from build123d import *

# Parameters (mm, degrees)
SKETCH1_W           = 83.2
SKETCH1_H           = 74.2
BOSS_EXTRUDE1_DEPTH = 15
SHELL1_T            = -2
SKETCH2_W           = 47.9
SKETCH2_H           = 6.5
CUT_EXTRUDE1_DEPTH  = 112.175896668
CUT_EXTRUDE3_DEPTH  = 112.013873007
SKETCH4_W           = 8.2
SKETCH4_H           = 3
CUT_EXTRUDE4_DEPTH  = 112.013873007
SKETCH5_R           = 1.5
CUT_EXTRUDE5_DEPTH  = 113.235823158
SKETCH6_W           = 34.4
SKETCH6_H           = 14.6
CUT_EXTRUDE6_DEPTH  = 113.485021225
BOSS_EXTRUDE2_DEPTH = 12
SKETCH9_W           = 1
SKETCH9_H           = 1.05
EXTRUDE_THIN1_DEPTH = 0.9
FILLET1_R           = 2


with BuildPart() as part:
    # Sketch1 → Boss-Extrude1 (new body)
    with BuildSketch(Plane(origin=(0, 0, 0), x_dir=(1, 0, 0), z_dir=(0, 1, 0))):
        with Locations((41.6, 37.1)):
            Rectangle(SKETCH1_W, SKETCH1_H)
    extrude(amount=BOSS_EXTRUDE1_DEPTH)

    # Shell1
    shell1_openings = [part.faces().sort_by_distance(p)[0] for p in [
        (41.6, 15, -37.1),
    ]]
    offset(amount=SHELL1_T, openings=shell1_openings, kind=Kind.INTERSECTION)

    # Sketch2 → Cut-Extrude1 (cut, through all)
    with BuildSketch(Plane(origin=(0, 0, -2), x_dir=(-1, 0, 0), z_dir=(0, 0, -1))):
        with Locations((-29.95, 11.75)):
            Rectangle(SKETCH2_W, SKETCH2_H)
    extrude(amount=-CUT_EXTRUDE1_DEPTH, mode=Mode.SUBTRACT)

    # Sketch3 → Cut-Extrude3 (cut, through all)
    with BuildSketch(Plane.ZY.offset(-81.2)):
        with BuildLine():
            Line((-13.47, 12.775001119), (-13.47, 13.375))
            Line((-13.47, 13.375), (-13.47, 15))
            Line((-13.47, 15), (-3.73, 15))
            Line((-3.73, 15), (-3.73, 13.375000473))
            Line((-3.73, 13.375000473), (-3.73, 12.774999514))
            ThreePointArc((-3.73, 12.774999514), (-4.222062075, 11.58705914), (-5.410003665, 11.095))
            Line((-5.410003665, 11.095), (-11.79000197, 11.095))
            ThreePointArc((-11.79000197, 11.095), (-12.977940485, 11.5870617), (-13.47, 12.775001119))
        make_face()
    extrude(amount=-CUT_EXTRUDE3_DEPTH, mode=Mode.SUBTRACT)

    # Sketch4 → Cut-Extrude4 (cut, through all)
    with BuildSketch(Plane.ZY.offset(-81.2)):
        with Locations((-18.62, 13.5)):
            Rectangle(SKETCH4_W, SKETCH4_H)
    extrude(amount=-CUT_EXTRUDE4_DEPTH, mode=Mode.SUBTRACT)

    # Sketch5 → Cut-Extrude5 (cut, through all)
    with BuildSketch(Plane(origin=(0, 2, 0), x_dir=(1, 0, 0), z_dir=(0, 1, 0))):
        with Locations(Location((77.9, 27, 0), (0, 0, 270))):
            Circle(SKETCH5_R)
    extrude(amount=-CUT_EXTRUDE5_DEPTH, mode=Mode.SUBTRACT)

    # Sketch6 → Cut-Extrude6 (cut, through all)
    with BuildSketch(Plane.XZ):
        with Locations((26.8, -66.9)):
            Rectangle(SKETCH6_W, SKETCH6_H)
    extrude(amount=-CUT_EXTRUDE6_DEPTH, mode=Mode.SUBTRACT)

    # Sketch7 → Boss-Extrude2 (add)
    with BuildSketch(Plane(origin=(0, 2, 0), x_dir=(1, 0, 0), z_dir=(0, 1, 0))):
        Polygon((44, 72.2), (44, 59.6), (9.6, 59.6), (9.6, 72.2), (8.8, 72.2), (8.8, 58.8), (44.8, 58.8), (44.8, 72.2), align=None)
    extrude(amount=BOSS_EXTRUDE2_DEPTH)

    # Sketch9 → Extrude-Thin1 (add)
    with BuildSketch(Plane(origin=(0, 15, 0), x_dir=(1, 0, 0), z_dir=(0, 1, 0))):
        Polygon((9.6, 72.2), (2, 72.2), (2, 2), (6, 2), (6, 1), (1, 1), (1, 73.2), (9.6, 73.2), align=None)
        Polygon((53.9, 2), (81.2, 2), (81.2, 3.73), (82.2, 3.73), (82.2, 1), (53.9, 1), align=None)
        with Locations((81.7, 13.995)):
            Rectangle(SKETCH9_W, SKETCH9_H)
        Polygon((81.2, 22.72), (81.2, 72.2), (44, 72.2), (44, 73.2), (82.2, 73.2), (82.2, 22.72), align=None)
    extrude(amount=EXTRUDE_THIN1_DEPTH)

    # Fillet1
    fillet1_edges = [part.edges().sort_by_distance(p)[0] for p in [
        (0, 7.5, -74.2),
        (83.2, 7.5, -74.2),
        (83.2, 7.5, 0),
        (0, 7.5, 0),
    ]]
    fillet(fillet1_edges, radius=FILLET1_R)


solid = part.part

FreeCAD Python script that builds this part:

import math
import FreeCAD as App
import Part
import Sketcher

V = App.Vector
Q = App.Units.Quantity


def edges_at(feature, points):
    """Names of the edges that pass closest to the given points."""
    edges = feature.Shape.Edges
    near = lambda p: min(range(len(edges)), key=lambda i: edges[i].distToShape(Part.Vertex(*p))[0])
    return sorted({f"Edge{near(p) + 1}" for p in points})


def faces_at(feature, points):
    """Names of the faces that lie closest to the given points."""
    faces = feature.Shape.Faces
    near = lambda p: min(range(len(faces)), key=lambda i: faces[i].distToShape(Part.Vertex(*p))[0])
    return sorted({f"Face{near(p) + 1}" for p in points})

doc = App.newDocument("Part")
body = doc.addObject("PartDesign::Body", "Body")

# Sketch on XZ plane
sketch1 = body.newObject("Sketcher::SketchObject", "Sketch")
sketch1.AttachmentSupport = (doc.getObject("XZ_Plane"), [""])
sketch1.MapMode = "FlatFace"
sketch1.addGeometry([
    Part.LineSegment(V(0, -74.2, 0), V(0, 0, 0)),
    Part.LineSegment(V(0, 0, 0), V(83.2, 0, 0)),
    Part.LineSegment(V(83.2, 0, 0), V(83.2, -74.2, 0)),
    Part.LineSegment(V(83.2, -74.2, 0), V(0, -74.2, 0)),
], False)
sketch1.addConstraint([
    Sketcher.Constraint("Coincident", 0, 2, 1, 1),
    Sketcher.Constraint("Coincident", 1, 2, 2, 1),
    Sketcher.Constraint("Coincident", 2, 2, 3, 1),
    Sketcher.Constraint("Coincident", 3, 2, 0, 1),
    Sketcher.Constraint("Vertical", 0),
    Sketcher.Constraint("Horizontal", 1),
    Sketcher.Constraint("Vertical", 2),
    Sketcher.Constraint("Horizontal", 3),
    Sketcher.Constraint("Coincident", 0, 2, -1, 1),
    Sketcher.Constraint("DistanceX", 1, 1, 1, 2, Q("83.2 mm")),
    Sketcher.Constraint("DistanceY", 0, 1, 0, 2, Q("74.2 mm")),
])
pad1 = body.newObject("PartDesign::Pad", "Pad")
pad1.Profile = sketch1
pad1.Length = 15
pad1.Reversed = True
doc.recompute()

thickness = body.newObject("PartDesign::Thickness", "Thickness")
thickness.Base = (pad1, faces_at(pad1, [(41.6, 15, -37.1)]))
thickness.Value = 2
thickness.Reversed = True
thickness.Join = "Intersection"

# Sketch on XY plane
sketch2 = body.newObject("Sketcher::SketchObject", "Sketch001")
sketch2.AttachmentSupport = (doc.getObject("XY_Plane"), [""])
sketch2.MapMode = "FlatFace"
sketch2.AttachmentOffset = App.Placement(V(0, 0, -2), App.Rotation())
sketch2.addGeometry([
    Part.LineSegment(V(53.9, 15, 0), V(53.9, 8.5, 0)),
    Part.LineSegment(V(53.9, 8.5, 0), V(6, 8.5, 0)),
    Part.LineSegment(V(6, 8.5, 0), V(6, 15, 0)),
    Part.LineSegment(V(6, 15, 0), V(53.9, 15, 0)),
], False)
sketch2.addConstraint([
    Sketcher.Constraint("Coincident", 0, 2, 1, 1),
    Sketcher.Constraint("Coincident", 1, 2, 2, 1),
    Sketcher.Constraint("Coincident", 2, 2, 3, 1),
    Sketcher.Constraint("Coincident", 3, 2, 0, 1),
    Sketcher.Constraint("Vertical", 0),
    Sketcher.Constraint("Horizontal", 1),
    Sketcher.Constraint("Vertical", 2),
    Sketcher.Constraint("Horizontal", 3),
    Sketcher.Constraint("DistanceX", 1, 2, 1, 1, Q("47.9 mm")),
    Sketcher.Constraint("DistanceY", 0, 2, 0, 1, Q("6.5 mm")),
    Sketcher.Constraint("DistanceX", -1, 1, 1, 2, Q("6 mm")),
    Sketcher.Constraint("DistanceY", -1, 1, 2, 2, Q("15 mm")),
])
pocket1 = body.newObject("PartDesign::Pocket", "Pocket")
pocket1.Profile = sketch2
pocket1.Type = "ThroughAll"
pocket1.Reversed = True

# Sketch on YZ plane
sketch3 = body.newObject("Sketcher::SketchObject", "Sketch002")
sketch3.AttachmentSupport = (doc.getObject("YZ_Plane"), [""])
sketch3.MapMode = "FlatFace"
sketch3.AttachmentOffset = App.Placement(V(0, 0, 81.2), App.Rotation())
sketch3.addGeometry([
    Part.LineSegment(V(15, -13.47, 0), V(12.775001, -13.47, 0)),  # 0
    Part.ArcOfCircle(Part.Circle(V(12.775, -11.79, 0), V(0, 0, 1), 1.68), math.radians(-179.999933), math.radians(-89.999962)),  # 1
    Part.LineSegment(V(11.095, -11.790002, 0), V(11.095, -5.410004, 0)),  # 2
    Part.ArcOfCircle(Part.Circle(V(12.775, -5.41, 0), V(0, 0, 1), 1.68), math.radians(90.000017), math.radians(180.000125)),  # 3
    Part.LineSegment(V(12.775, -3.73, 0), V(15, -3.73, 0)),  # 4
    Part.LineSegment(V(15, -3.73, 0), V(15, -13.47, 0)),  # 5
], False)
sketch3.addConstraint([
    Sketcher.Constraint("Tangent", 0, 2, 1, 2),
    Sketcher.Constraint("Tangent", 1, 1, 2, 1),
    Sketcher.Constraint("Coincident", 2, 2, 3, 2),
    Sketcher.Constraint("Tangent", 3, 1, 4, 1),
    Sketcher.Constraint("Coincident", 4, 2, 5, 1),
    Sketcher.Constraint("Coincident", 5, 2, 0, 1),
    Sketcher.Constraint("Horizontal", 0),
    Sketcher.Constraint("Vertical", 2),
    Sketcher.Constraint("Horizontal", 4),
    Sketcher.Constraint("Vertical", 5),
    Sketcher.Constraint("Equal", 1, 3),
    Sketcher.Constraint("Radius", 1, Q("1.68 mm")),
    Sketcher.Constraint("DistanceX", -1, 1, 4, 2, Q("15 mm")),
    Sketcher.Constraint("DistanceY", 2, 1, 2, 2, Q("6.379998 mm")),
    Sketcher.Constraint("DistanceY", 5, 2, 5, 1, Q("9.74 mm")),
    Sketcher.Constraint("DistanceX", 0, 2, 0, 1, Q("2.224999 mm")),
    Sketcher.Constraint("DistanceY", 1, 3, -1, 1, Q("11.79 mm")),
])
pocket2 = body.newObject("PartDesign::Pocket", "Pocket001")
pocket2.Profile = sketch3
pocket2.Type = "ThroughAll"
pocket2.Reversed = True

# Sketch on YZ plane
sketch4 = body.newObject("Sketcher::SketchObject", "Sketch003")
sketch4.AttachmentSupport = (doc.getObject("YZ_Plane"), [""])
sketch4.MapMode = "FlatFace"
sketch4.AttachmentOffset = App.Placement(V(0, 0, 81.2), App.Rotation())
sketch4.addGeometry([
    Part.LineSegment(V(15, -22.72, 0), V(12, -22.72, 0)),
    Part.LineSegment(V(12, -22.72, 0), V(12, -14.52, 0)),
    Part.LineSegment(V(12, -14.52, 0), V(15, -14.52, 0)),
    Part.LineSegment(V(15, -14.52, 0), V(15, -22.72, 0)),
], False)
sketch4.addConstraint([
    Sketcher.Constraint("Coincident", 0, 2, 1, 1),
    Sketcher.Constraint("Coincident", 1, 2, 2, 1),
    Sketcher.Constraint("Coincident", 2, 2, 3, 1),
    Sketcher.Constraint("Coincident", 3, 2, 0, 1),
    Sketcher.Constraint("Horizontal", 0),
    Sketcher.Constraint("Vertical", 1),
    Sketcher.Constraint("Horizontal", 2),
    Sketcher.Constraint("Vertical", 3),
    Sketcher.Constraint("DistanceX", 0, 2, 0, 1, Q("3 mm")),
    Sketcher.Constraint("DistanceY", 1, 1, 1, 2, Q("8.2 mm")),
    Sketcher.Constraint("DistanceX", -1, 1, 0, 2, Q("12 mm")),
    Sketcher.Constraint("DistanceY", 0, 2, -1, 1, Q("22.72 mm")),
])
pocket3 = body.newObject("PartDesign::Pocket", "Pocket002")
pocket3.Profile = sketch4
pocket3.Type = "ThroughAll"
pocket3.Reversed = True

# Sketch on XZ plane
sketch5 = body.newObject("Sketcher::SketchObject", "Sketch004")
sketch5.AttachmentSupport = (doc.getObject("XZ_Plane"), [""])
sketch5.MapMode = "FlatFace"
sketch5.AttachmentOffset = App.Placement(V(0, 0, -2), App.Rotation())
sketch5.addGeometry(Part.Circle(V(77.9, -27, 0), V(0, 0, 1), 1.5), False)
sketch5.addConstraint([
    Sketcher.Constraint("Diameter", 0, Q("3 mm")),
    Sketcher.Constraint("DistanceY", 0, 3, -1, 1, Q("27 mm")),
    Sketcher.Constraint("DistanceX", -1, 1, 0, 3, Q("77.9 mm")),
])
pocket4 = body.newObject("PartDesign::Pocket", "Pocket003")
pocket4.Profile = sketch5
pocket4.Type = "ThroughAll"
pocket4.Reversed = True

# Sketch on XZ plane
sketch6 = body.newObject("Sketcher::SketchObject", "Sketch005")
sketch6.AttachmentSupport = (doc.getObject("XZ_Plane"), [""])
sketch6.MapMode = "FlatFace"
sketch6.addGeometry([
    Part.LineSegment(V(9.6, -59.6, 0), V(9.6, -74.2, 0)),
    Part.LineSegment(V(9.6, -74.2, 0), V(44, -74.2, 0)),
    Part.LineSegment(V(44, -74.2, 0), V(44, -59.6, 0)),
    Part.LineSegment(V(44, -59.6, 0), V(9.6, -59.6, 0)),
], False)
sketch6.addConstraint([
    Sketcher.Constraint("Coincident", 0, 2, 1, 1),
    Sketcher.Constraint("Coincident", 1, 2, 2, 1),
    Sketcher.Constraint("Coincident", 2, 2, 3, 1),
    Sketcher.Constraint("Coincident", 3, 2, 0, 1),
    Sketcher.Constraint("Vertical", 0),
    Sketcher.Constraint("Horizontal", 1),
    Sketcher.Constraint("Vertical", 2),
    Sketcher.Constraint("Horizontal", 3),
    Sketcher.Constraint("DistanceX", 1, 1, 1, 2, Q("34.4 mm")),
    Sketcher.Constraint("DistanceY", 0, 2, 0, 1, Q("14.6 mm")),
    Sketcher.Constraint("DistanceX", -1, 1, 1, 2, Q("44 mm")),
    Sketcher.Constraint("DistanceY", 0, 2, -1, 1, Q("74.2 mm")),
])
pocket5 = body.newObject("PartDesign::Pocket", "Pocket004")
pocket5.Profile = sketch6
pocket5.Type = "ThroughAll"

# Sketch on XZ plane
sketch7 = body.newObject("Sketcher::SketchObject", "Sketch006")
sketch7.AttachmentSupport = (doc.getObject("XZ_Plane"), [""])
sketch7.MapMode = "FlatFace"
sketch7.AttachmentOffset = App.Placement(V(0, 0, -2), App.Rotation())
sketch7.addGeometry([
    Part.LineSegment(V(44, -72.2, 0), V(44, -59.6, 0)),  # 0
    Part.LineSegment(V(44, -59.6, 0), V(9.6, -59.6, 0)),  # 1
    Part.LineSegment(V(9.6, -59.6, 0), V(9.6, -72.2, 0)),  # 2
    Part.LineSegment(V(9.6, -72.2, 0), V(8.8, -72.2, 0)),  # 3
    Part.LineSegment(V(8.8, -72.2, 0), V(8.8, -58.8, 0)),  # 4
    Part.LineSegment(V(8.8, -58.8, 0), V(44.8, -58.8, 0)),  # 5
    Part.LineSegment(V(44.8, -58.8, 0), V(44.8, -72.2, 0)),  # 6
    Part.LineSegment(V(44.8, -72.2, 0), V(44, -72.2, 0)),  # 7
], False)
sketch7.addConstraint([
    Sketcher.Constraint("Coincident", 0, 2, 1, 1),
    Sketcher.Constraint("Coincident", 1, 2, 2, 1),
    Sketcher.Constraint("Coincident", 2, 2, 3, 1),
    Sketcher.Constraint("Coincident", 3, 2, 4, 1),
    Sketcher.Constraint("Coincident", 4, 2, 5, 1),
    Sketcher.Constraint("Coincident", 5, 2, 6, 1),
    Sketcher.Constraint("Coincident", 6, 2, 7, 1),
    Sketcher.Constraint("Coincident", 7, 2, 0, 1),
    Sketcher.Constraint("Vertical", 0),
    Sketcher.Constraint("Horizontal", 1),
    Sketcher.Constraint("Vertical", 2),
    Sketcher.Constraint("Horizontal", 3),
    Sketcher.Constraint("Vertical", 4),
    Sketcher.Constraint("Horizontal", 5),
    Sketcher.Constraint("Vertical", 6),
    Sketcher.Constraint("Horizontal", 7),
    Sketcher.Constraint("Horizontal", 3, 2, 6, 2),
    Sketcher.Constraint("Equal", 3, 7),
    Sketcher.Constraint("DistanceX", 5, 1, 5, 2, Q("36 mm")),
    Sketcher.Constraint("DistanceX", 1, 2, 1, 1, Q("34.4 mm")),
    Sketcher.Constraint("DistanceY", 0, 1, 0, 2, Q("12.6 mm")),
    Sketcher.Constraint("DistanceY", 4, 1, 4, 2, Q("13.4 mm")),
    Sketcher.Constraint("DistanceX", -1, 1, 0, 2, Q("44 mm")),
    Sketcher.Constraint("DistanceY", 0, 2, -1, 1, Q("59.6 mm")),
])
pad2 = body.newObject("PartDesign::Pad", "Pad001")
pad2.Profile = sketch7
pad2.Length = 12
pad2.Reversed = True

# Sketch on XZ plane
sketch8 = body.newObject("Sketcher::SketchObject", "Sketch007")
sketch8.AttachmentSupport = (doc.getObject("XZ_Plane"), [""])
sketch8.MapMode = "FlatFace"
sketch8.AttachmentOffset = App.Placement(V(0, 0, -15), App.Rotation())
sketch8.addGeometry([
    Part.LineSegment(V(2, -72.2, 0), V(9.6, -72.2, 0)),  # 0
    Part.LineSegment(V(9.6, -72.2, 0), V(9.6, -73.2, 0)),  # 1
    Part.LineSegment(V(9.6, -73.2, 0), V(1, -73.2, 0)),  # 2
    Part.LineSegment(V(1, -73.2, 0), V(1, -1, 0)),  # 3
    Part.LineSegment(V(1, -1, 0), V(6, -1, 0)),  # 4
    Part.LineSegment(V(6, -1, 0), V(6, -2, 0)),  # 5
    Part.LineSegment(V(6, -2, 0), V(2, -2, 0)),  # 6
    Part.LineSegment(V(2, -2, 0), V(2, -72.2, 0)),  # 7
    Part.LineSegment(V(81.2, -2, 0), V(53.9, -2, 0)),  # 8
    Part.LineSegment(V(53.9, -2, 0), V(53.9, -1, 0)),  # 9
    Part.LineSegment(V(53.9, -1, 0), V(82.2, -1, 0)),  # 10
    Part.LineSegment(V(82.2, -1, 0), V(82.2, -3.73, 0)),  # 11
    Part.LineSegment(V(82.2, -3.73, 0), V(81.2, -3.73, 0)),  # 12
    Part.LineSegment(V(81.2, -3.73, 0), V(81.2, -2, 0)),  # 13
    Part.LineSegment(V(81.2, -14.52, 0), V(81.2, -13.47, 0)),  # 14
    Part.LineSegment(V(81.2, -13.47, 0), V(82.2, -13.47, 0)),  # 15
    Part.LineSegment(V(82.2, -13.47, 0), V(82.2, -14.52, 0)),  # 16
    Part.LineSegment(V(82.2, -14.52, 0), V(81.2, -14.52, 0)),  # 17
    Part.LineSegment(V(81.2, -72.2, 0), V(81.2, -22.72, 0)),  # 18
    Part.LineSegment(V(81.2, -22.72, 0), V(82.2, -22.72, 0)),  # 19
    Part.LineSegment(V(82.2, -22.72, 0), V(82.2, -73.2, 0)),  # 20
    Part.LineSegment(V(82.2, -73.2, 0), V(44, -73.2, 0)),  # 21
    Part.LineSegment(V(44, -73.2, 0), V(44, -72.2, 0)),  # 22
    Part.LineSegment(V(44, -72.2, 0), V(81.2, -72.2, 0)),  # 23
], False)
sketch8.addConstraint([
    Sketcher.Constraint("Coincident", 0, 2, 1, 1),
    Sketcher.Constraint("Coincident", 1, 2, 2, 1),
    Sketcher.Constraint("Coincident", 2, 2, 3, 1),
    Sketcher.Constraint("Coincident", 3, 2, 4, 1),
    Sketcher.Constraint("Coincident", 4, 2, 5, 1),
    Sketcher.Constraint("Coincident", 5, 2, 6, 1),
    Sketcher.Constraint("Coincident", 6, 2, 7, 1),
    Sketcher.Constraint("Coincident", 7, 2, 0, 1),
    Sketcher.Constraint("Coincident", 8, 2, 9, 1),
    Sketcher.Constraint("Coincident", 9, 2, 10, 1),
    Sketcher.Constraint("Coincident", 10, 2, 11, 1),
    Sketcher.Constraint("Coincident", 11, 2, 12, 1),
    Sketcher.Constraint("Coincident", 12, 2, 13, 1),
    Sketcher.Constraint("Coincident", 13, 2, 8, 1),
    Sketcher.Constraint("Coincident", 14, 2, 15, 1),
    Sketcher.Constraint("Coincident", 15, 2, 16, 1),
    Sketcher.Constraint("Coincident", 16, 2, 17, 1),
    Sketcher.Constraint("Coincident", 17, 2, 14, 1),
    Sketcher.Constraint("Coincident", 18, 2, 19, 1),
    Sketcher.Constraint("Coincident", 19, 2, 20, 1),
    Sketcher.Constraint("Coincident", 20, 2, 21, 1),
    Sketcher.Constraint("Coincident", 21, 2, 22, 1),
    Sketcher.Constraint("Coincident", 22, 2, 23, 1),
    Sketcher.Constraint("Coincident", 23, 2, 18, 1),
    Sketcher.Constraint("Horizontal", 0),
    Sketcher.Constraint("Vertical", 1),
    Sketcher.Constraint("Horizontal", 2),
    Sketcher.Constraint("Vertical", 3),
    Sketcher.Constraint("Horizontal", 4),
    Sketcher.Constraint("Vertical", 5),
    Sketcher.Constraint("Horizontal", 6),
    Sketcher.Constraint("Vertical", 7),
    Sketcher.Constraint("Horizontal", 8),
    Sketcher.Constraint("Vertical", 9),
    Sketcher.Constraint("Horizontal", 10),
    Sketcher.Constraint("Vertical", 11),
    Sketcher.Constraint("Horizontal", 12),
    Sketcher.Constraint("Vertical", 13),
    Sketcher.Constraint("Vertical", 14),
    Sketcher.Constraint("Horizontal", 15),
    Sketcher.Constraint("Vertical", 16),
    Sketcher.Constraint("Horizontal", 17),
    Sketcher.Constraint("Vertical", 18),
    Sketcher.Constraint("Horizontal", 19),
    Sketcher.Constraint("Vertical", 20),
    Sketcher.Constraint("Horizontal", 21),
    Sketcher.Constraint("Vertical", 22),
    Sketcher.Constraint("Horizontal", 23),
    Sketcher.Constraint("Horizontal", 6, 2, 8, 2),
    Sketcher.Constraint("Horizontal", 4, 2, 9, 2),
    Sketcher.Constraint("Horizontal", 2, 2, 20, 2),
    Sketcher.Constraint("Horizontal", 7, 2, 22, 2),
    Sketcher.Constraint("Vertical", 13, 2, 14, 2),
    Sketcher.Constraint("Vertical", 11, 2, 15, 2),
    Sketcher.Constraint("Vertical", 17, 2, 18, 2),
    Sketcher.Constraint("Vertical", 16, 2, 19, 2),
    Sketcher.Constraint("Equal", 19, 1),
    Sketcher.Constraint("Equal", 1, 5),
    Sketcher.Constraint("DistanceX", 4, 1, 4, 2, Q("5 mm")),
    Sketcher.Constraint("DistanceX", 6, 2, 6, 1, Q("4 mm")),
    Sketcher.Constraint("DistanceX", 12, 2, 12, 1, Q("1 mm")),
    Sketcher.Constraint("DistanceX", 0, 1, 0, 2, Q("7.6 mm")),
    Sketcher.Constraint("DistanceX", 8, 2, 8, 1, Q("27.3 mm")),
    Sketcher.Constraint("DistanceX", 21, 2, 21, 1, Q("38.2 mm")),
    Sketcher.Constraint("DistanceY", 3, 1, 3, 2, Q("72.2 mm")),
    Sketcher.Constraint("DistanceX", -1, 1, 2, 2, Q("1 mm")),
    Sketcher.Constraint("DistanceY", 3, 2, -1, 1, Q("1 mm")),
    Sketcher.Constraint("DistanceX", -1, 1, 21, 2, Q("44 mm")),
    Sketcher.Constraint("DistanceY", 11, 2, 11, 1, Q("2.73 mm")),
    Sketcher.Constraint("DistanceY", 14, 1, 14, 2, Q("1.05 mm")),
    Sketcher.Constraint("DistanceY", 18, 1, 18, 2, Q("49.48 mm")),
    Sketcher.Constraint("DistanceY", 18, 2, 17, 2, Q("8.2 mm")),
])
pad3 = body.newObject("PartDesign::Pad", "Pad002")
pad3.Profile = sketch8
pad3.Length = 0.9
pad3.Reversed = True
doc.recompute()

fillet = body.newObject("PartDesign::Fillet", "Fillet")
fillet.Base = (pad3, edges_at(pad3, [
    (0, 7.5, -74.2),
    (83.2, 7.5, -74.2),
    (83.2, 7.5, 0),
    (0, 7.5, 0),
]))
fillet.Radius = 2

doc.recompute()
